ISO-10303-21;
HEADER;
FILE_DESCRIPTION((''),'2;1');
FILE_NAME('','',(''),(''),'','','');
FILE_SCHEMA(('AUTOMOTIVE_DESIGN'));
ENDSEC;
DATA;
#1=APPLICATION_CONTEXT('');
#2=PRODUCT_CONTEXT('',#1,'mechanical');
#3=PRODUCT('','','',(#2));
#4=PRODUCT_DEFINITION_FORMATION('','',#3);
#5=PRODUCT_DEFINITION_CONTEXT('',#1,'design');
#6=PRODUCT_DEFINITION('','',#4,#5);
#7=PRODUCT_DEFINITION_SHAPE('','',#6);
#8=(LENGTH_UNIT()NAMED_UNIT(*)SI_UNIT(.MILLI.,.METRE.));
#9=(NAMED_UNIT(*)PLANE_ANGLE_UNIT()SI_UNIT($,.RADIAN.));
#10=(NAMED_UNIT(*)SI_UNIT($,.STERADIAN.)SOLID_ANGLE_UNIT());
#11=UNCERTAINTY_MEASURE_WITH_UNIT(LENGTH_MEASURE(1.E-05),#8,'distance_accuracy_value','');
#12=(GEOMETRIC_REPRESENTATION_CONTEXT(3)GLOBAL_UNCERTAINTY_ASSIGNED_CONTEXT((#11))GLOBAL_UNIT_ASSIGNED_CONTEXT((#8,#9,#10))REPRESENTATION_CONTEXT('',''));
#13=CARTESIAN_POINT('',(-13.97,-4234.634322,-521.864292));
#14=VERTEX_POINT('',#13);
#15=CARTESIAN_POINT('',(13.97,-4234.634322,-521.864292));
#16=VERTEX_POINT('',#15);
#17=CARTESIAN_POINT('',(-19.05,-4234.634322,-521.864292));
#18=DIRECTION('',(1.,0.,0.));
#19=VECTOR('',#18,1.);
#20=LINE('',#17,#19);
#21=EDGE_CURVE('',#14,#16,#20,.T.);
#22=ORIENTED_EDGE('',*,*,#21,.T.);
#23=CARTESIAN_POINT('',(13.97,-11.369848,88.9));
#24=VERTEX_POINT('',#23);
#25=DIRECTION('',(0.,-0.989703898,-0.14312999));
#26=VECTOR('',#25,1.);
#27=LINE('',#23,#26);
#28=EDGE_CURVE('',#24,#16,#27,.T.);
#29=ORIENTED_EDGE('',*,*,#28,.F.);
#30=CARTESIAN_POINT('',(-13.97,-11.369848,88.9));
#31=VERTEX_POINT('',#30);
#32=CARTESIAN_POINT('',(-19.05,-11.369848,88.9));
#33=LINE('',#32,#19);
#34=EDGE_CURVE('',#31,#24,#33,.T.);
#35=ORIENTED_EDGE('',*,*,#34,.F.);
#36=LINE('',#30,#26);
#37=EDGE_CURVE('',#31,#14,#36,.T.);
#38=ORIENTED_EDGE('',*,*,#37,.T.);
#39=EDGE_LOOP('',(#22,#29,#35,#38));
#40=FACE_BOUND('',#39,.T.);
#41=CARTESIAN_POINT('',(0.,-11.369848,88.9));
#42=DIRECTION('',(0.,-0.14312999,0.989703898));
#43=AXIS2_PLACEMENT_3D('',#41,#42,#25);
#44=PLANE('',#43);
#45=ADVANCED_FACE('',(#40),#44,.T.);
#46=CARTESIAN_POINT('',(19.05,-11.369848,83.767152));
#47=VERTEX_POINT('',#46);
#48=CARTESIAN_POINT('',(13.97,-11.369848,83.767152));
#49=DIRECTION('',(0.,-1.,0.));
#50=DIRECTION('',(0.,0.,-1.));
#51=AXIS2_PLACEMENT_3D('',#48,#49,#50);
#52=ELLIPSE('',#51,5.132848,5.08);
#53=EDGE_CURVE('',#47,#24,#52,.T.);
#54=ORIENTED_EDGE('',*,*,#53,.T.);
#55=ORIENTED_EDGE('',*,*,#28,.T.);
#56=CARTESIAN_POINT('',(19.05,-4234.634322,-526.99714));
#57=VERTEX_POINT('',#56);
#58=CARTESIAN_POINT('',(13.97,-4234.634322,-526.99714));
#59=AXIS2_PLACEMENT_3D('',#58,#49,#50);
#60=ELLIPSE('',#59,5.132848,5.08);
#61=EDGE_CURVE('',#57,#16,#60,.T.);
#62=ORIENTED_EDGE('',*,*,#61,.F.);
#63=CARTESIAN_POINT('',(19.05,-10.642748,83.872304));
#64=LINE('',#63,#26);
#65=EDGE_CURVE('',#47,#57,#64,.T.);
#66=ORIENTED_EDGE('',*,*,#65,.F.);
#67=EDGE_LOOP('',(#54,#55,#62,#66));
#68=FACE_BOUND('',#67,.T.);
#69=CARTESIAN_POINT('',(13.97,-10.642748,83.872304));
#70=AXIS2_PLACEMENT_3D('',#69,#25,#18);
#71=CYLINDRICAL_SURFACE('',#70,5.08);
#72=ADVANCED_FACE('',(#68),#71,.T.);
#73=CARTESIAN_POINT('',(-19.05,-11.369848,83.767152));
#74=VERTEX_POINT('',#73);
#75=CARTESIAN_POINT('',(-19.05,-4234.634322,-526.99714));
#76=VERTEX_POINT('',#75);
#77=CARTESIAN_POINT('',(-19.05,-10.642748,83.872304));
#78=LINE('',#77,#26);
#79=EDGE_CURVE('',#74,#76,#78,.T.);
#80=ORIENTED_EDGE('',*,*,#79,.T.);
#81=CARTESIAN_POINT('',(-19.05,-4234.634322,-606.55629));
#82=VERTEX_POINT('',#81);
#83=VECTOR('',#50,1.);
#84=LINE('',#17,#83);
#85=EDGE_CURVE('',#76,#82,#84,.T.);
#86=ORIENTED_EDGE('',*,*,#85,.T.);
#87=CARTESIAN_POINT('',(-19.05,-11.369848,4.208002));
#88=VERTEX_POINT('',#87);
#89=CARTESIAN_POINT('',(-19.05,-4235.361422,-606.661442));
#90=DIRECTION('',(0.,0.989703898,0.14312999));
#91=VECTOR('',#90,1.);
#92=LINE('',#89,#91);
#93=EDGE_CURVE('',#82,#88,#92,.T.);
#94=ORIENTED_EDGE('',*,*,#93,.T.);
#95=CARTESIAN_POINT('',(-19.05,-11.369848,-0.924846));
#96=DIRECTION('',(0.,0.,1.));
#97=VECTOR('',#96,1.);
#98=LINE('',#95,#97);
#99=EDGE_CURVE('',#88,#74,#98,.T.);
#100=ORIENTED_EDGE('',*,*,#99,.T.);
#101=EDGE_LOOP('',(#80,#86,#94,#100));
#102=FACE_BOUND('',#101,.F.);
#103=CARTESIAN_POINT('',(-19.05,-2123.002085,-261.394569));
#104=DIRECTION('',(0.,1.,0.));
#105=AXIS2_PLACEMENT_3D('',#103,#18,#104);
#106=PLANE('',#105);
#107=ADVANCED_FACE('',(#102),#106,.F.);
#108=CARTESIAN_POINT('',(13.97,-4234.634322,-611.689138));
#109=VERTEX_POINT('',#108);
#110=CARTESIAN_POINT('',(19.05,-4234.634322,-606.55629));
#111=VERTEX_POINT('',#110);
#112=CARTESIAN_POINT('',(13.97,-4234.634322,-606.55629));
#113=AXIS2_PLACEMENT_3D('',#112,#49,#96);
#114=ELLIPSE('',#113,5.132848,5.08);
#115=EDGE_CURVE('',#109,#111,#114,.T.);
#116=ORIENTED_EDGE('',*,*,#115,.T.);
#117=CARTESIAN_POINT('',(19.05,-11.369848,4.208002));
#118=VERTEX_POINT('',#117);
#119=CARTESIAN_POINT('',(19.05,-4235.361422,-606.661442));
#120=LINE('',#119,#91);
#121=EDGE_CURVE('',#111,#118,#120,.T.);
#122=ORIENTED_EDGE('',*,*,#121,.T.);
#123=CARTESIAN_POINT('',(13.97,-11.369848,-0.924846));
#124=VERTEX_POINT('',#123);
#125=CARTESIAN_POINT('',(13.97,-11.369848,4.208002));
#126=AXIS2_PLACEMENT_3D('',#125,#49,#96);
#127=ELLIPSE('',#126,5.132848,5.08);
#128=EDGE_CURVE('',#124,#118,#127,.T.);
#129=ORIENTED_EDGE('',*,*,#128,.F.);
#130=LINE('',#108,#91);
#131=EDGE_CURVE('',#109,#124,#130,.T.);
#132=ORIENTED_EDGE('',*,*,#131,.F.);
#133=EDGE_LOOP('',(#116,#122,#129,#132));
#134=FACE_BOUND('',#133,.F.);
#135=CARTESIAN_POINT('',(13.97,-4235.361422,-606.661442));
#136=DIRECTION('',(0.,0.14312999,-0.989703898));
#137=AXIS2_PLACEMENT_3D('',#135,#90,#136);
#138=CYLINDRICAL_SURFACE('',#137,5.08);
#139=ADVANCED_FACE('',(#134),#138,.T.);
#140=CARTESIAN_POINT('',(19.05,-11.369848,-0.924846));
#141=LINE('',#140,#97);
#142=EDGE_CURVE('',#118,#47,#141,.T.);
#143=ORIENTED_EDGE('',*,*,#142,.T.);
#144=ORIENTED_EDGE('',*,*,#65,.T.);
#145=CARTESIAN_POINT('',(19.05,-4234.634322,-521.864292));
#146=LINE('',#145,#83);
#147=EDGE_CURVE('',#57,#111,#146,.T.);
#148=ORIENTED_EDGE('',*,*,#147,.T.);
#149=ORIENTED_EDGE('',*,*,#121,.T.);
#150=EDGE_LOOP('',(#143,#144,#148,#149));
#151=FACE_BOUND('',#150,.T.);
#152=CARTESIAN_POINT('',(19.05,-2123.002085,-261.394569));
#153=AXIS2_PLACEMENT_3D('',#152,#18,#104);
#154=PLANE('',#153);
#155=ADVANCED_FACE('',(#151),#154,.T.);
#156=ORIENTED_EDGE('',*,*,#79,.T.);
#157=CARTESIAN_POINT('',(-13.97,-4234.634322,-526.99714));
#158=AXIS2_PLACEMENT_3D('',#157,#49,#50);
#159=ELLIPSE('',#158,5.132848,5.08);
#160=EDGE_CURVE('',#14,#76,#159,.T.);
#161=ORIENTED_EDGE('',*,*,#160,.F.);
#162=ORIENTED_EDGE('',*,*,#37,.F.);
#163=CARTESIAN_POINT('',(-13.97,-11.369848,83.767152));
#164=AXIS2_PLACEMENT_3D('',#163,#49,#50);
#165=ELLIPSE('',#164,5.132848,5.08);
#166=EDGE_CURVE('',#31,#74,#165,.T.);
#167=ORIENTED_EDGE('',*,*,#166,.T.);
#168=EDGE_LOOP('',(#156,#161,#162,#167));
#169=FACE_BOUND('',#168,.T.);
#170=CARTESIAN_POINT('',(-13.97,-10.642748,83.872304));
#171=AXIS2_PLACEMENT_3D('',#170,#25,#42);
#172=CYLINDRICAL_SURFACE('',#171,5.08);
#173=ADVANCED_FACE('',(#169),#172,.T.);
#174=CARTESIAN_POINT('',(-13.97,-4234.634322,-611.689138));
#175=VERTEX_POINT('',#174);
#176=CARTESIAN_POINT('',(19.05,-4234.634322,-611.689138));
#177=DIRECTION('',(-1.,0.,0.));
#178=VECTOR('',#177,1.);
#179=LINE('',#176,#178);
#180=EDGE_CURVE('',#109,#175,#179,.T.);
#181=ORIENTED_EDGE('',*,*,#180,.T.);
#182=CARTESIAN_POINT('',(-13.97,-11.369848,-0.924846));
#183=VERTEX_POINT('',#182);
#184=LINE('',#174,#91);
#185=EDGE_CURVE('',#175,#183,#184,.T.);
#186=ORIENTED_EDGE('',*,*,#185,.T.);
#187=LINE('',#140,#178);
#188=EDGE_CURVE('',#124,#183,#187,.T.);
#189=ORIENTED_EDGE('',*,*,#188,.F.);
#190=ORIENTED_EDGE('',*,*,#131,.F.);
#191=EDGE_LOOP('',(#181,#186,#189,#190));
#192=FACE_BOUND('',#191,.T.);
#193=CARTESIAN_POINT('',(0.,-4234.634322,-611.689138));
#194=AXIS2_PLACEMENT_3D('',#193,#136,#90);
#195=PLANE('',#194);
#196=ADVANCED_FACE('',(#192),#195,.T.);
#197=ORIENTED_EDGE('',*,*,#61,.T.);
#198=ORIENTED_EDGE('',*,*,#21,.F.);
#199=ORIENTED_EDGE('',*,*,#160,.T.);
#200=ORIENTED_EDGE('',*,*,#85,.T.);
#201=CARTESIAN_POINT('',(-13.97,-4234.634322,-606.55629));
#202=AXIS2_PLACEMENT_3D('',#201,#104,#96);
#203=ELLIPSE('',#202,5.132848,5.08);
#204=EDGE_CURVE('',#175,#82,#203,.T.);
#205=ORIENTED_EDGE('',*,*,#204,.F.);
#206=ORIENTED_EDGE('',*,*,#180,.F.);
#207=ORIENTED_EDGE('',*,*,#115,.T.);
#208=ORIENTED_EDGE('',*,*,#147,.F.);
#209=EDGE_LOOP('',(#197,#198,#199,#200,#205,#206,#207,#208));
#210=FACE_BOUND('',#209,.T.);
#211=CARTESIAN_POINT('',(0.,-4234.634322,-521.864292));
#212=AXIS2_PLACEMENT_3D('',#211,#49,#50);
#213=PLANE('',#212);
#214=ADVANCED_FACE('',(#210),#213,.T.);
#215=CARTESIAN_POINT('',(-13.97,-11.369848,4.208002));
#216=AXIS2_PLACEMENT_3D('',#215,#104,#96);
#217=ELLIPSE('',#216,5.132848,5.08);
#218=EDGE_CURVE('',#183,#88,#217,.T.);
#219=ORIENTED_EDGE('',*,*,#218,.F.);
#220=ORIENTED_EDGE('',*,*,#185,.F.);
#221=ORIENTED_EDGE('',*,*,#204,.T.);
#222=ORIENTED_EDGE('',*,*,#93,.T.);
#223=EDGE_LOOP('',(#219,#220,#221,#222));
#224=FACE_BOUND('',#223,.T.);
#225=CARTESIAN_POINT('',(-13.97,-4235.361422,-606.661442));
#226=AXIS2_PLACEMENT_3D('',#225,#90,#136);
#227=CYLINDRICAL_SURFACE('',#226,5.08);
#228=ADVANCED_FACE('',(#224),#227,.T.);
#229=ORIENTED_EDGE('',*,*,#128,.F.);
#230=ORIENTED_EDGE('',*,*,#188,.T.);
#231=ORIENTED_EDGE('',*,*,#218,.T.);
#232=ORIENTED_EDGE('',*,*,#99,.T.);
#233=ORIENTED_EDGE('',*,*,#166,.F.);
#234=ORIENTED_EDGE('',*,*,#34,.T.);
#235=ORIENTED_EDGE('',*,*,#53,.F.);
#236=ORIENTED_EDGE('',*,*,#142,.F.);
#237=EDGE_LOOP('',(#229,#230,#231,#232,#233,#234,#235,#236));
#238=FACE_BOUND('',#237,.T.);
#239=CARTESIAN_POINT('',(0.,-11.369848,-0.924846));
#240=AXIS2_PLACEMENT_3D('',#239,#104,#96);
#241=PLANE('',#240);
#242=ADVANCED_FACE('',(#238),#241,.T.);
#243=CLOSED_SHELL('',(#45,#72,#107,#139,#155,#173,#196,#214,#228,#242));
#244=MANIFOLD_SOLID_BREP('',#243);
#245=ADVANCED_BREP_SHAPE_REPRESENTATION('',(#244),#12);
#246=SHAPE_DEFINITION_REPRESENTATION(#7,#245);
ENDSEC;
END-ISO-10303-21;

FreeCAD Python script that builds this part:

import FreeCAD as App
import Part
import Sketcher
from FreeCAD import Vector
Q = App.Units.Quantity


def edges_at(feature, points):
    """Names of the edges that pass closest to the given points."""
    edges = feature.Shape.Edges
    near = lambda p: min(range(len(edges)), key=lambda i: edges[i].distToShape(Part.Vertex(*p))[0])
    return sorted({f"Edge{near(p) + 1}" for p in points})


def add_polygon(sketch, points):
    """Adds a closed chain of lines whose ends are joined by coincident constraints."""
    first, n = sketch.GeometryCount, len(points)
    for a, b in zip(points, points[1:] + points[:1]):
        sketch.addGeometry(Part.LineSegment(App.Vector(*a, 0), App.Vector(*b, 0)), False)
    for i in range(n):
        sketch.addConstraint(Sketcher.Constraint("Coincident", first + i, 2, first + (i + 1) % n, 1))

doc = App.newDocument("Part")
body = doc.addObject("PartDesign::Body", "Body")

# Sketch on YZ plane
sketch1 = body.newObject("Sketcher::SketchObject", "Sketch")
sketch1.AttachmentSupport = (doc.getObject("YZ_Plane"), [""])
sketch1.MapMode = "FlatFace"
add_polygon(sketch1, [(-11, -1), (-11, 89), (-4235, -522), (-4235, -612)])  # lines 0-3
sketch1.addConstraint(Sketcher.Constraint("Vertical", 0))
sketch1.addConstraint(Sketcher.Constraint("Vertical", 2))
sketch1.addConstraint(Sketcher.Constraint("Parallel", 1, 3))
sketch1.addConstraint(Sketcher.Constraint("Distance", 1, Q("168 in")))
sketch1.addConstraint(Sketcher.Constraint("DistanceY", -1, 1, 0, 2, Q("3.5 in")))
sketch1.addConstraint(Sketcher.Constraint("DistanceY", 0, 1, 0, 2, Q("89.824846 mm")))
sketch1.addConstraint(Sketcher.Constraint("DistanceX", 1, 2, -1, 1, Q("4234.634322 mm")))
sketch1.addConstraint(Sketcher.Constraint("DistanceY", 1, 2, -1, 1, Q("521.864292 mm")))
pad1 = body.newObject("PartDesign::Pad", "Pad")
pad1.Profile = sketch1
pad1.Length = Q("1.5 in")
pad1.Midplane = True
doc.recompute()

fillet = body.newObject("PartDesign::Fillet", "Fillet")
fillet.Base = (pad1, edges_at(pad1, [
    (19.05, -2123.002, -216.482),
    (-19.05, -2123.002, -216.482),
    (19.05, -2123.002, -306.307),
    (-19.05, -2123.002, -306.307),
]))
fillet.Radius = Q("0.2 in")

doc.recompute()
